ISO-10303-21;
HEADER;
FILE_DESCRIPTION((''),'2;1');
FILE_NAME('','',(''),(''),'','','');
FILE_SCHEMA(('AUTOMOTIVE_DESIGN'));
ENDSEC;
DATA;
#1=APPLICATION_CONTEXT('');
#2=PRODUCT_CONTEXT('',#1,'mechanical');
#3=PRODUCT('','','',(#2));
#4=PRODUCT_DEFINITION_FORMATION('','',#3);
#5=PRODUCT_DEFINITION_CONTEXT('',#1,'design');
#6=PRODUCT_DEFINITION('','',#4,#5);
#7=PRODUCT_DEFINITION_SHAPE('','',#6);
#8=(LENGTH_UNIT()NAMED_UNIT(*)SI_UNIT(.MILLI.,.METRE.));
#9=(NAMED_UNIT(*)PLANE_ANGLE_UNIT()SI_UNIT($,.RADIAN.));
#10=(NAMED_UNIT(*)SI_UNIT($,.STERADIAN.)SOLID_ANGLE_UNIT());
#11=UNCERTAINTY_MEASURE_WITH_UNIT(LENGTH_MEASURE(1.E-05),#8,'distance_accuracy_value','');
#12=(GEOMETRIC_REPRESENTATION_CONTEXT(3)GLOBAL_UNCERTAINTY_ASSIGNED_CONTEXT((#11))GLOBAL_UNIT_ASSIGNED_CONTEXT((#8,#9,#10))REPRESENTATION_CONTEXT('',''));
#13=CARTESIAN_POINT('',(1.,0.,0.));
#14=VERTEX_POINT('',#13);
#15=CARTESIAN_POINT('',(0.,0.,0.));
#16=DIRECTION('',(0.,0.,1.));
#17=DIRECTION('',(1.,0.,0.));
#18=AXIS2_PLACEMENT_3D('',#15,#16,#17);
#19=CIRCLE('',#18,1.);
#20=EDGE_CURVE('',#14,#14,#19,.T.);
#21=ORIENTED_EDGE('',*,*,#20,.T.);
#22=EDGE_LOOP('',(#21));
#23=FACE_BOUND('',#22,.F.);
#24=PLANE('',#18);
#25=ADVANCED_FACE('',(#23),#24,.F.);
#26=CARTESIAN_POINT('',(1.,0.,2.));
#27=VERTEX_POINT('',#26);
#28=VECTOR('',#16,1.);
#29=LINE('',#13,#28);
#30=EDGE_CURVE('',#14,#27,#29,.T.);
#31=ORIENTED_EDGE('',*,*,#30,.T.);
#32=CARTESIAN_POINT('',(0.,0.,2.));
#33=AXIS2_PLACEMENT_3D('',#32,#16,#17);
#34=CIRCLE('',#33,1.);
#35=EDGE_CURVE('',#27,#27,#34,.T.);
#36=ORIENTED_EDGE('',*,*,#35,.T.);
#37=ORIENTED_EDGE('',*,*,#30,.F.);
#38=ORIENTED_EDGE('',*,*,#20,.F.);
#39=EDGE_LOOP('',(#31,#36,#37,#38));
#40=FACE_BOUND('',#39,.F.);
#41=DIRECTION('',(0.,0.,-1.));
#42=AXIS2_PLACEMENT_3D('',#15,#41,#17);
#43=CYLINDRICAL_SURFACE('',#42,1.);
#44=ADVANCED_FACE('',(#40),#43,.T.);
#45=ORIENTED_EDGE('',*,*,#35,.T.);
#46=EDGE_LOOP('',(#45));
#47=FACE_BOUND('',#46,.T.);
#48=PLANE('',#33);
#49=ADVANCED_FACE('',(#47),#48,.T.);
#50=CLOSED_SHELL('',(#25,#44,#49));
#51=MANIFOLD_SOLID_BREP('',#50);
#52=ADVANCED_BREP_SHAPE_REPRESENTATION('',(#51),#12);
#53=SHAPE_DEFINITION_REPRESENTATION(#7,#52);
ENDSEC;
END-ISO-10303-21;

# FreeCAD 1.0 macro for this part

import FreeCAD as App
import Part
import Sketcher

V = App.Vector
Q = App.Units.Quantity

doc = App.newDocument("Part")
body = doc.addObject("PartDesign::Body", "Body")

# Sketch on XY plane
sketch1 = body.newObject("Sketcher::SketchObject", "Sketch")
sketch1.AttachmentSupport = (doc.getObject("XY_Plane"), [""])
sketch1.MapMode = "FlatFace"
sketch1.addGeometry(Part.Circle(V(0, 0, 0), V(0, 0, 1), 1), False)
sketch1.addConstraint([
    Sketcher.Constraint("Coincident", 0, 3, -1, 1),
    Sketcher.Constraint("Diameter", 0, Q("2 mm")),
])
pad1 = body.newObject("PartDesign::Pad", "Pad")
pad1.Profile = sketch1
pad1.Length = 2

doc.recompute()
